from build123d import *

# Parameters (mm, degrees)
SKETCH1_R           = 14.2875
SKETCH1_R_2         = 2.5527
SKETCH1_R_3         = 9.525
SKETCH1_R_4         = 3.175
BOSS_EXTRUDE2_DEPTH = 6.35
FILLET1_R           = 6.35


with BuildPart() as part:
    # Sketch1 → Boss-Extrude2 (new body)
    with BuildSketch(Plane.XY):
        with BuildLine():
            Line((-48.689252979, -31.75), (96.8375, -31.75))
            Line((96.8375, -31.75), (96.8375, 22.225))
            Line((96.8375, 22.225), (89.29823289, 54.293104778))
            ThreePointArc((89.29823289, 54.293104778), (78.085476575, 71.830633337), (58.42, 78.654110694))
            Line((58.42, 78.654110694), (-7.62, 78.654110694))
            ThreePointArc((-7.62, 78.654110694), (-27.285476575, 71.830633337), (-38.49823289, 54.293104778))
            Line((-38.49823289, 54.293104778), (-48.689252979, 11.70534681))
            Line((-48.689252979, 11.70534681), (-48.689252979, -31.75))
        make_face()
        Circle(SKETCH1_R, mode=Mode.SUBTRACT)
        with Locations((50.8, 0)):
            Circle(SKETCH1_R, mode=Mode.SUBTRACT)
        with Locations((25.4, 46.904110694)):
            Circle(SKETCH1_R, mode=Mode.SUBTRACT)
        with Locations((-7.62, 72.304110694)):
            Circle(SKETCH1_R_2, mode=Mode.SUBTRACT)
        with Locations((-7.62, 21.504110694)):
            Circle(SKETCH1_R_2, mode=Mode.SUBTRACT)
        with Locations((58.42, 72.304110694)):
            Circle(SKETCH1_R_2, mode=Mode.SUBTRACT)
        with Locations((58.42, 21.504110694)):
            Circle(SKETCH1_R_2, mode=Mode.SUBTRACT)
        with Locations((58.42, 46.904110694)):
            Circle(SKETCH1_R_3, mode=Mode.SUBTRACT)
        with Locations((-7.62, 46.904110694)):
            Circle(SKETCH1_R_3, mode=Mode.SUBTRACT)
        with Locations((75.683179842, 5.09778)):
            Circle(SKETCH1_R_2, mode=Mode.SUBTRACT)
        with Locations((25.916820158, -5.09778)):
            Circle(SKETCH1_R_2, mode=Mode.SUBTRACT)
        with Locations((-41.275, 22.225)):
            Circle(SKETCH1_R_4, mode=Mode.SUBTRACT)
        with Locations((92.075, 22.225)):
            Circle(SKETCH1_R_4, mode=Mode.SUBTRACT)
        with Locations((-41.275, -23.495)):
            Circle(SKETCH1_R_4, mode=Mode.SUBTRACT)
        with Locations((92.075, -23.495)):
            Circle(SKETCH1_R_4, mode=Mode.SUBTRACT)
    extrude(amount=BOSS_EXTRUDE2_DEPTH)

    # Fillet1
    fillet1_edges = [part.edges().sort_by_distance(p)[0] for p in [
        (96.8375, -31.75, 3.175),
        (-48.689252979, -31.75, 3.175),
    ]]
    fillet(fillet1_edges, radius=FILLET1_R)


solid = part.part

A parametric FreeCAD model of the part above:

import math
import FreeCAD as App
import Part
import Sketcher

V = App.Vector
Q = App.Units.Quantity


def edges_at(feature, points):
    """Names of the edges that pass closest to the given points."""
    edges = feature.Shape.Edges
    near = lambda p: min(range(len(edges)), key=lambda i: edges[i].distToShape(Part.Vertex(*p))[0])
    return sorted({f"Edge{near(p) + 1}" for p in points})

doc = App.newDocument("Part")
body = doc.addObject("PartDesign::Body", "Body")

# Sketch on XY plane
sketch1 = doc.addObject("Sketcher::SketchObject", "Sketch")
body.addObject(sketch1)
sketch1.AttachmentSupport = (doc.XY_Plane, [""])
sketch1.MapMode = "FlatFace"
sketch1.addGeometry(Part.LineSegment(V(-48.689253, -31.75, 0), V(96.8375, -31.75, 0)), False)
sketch1.addGeometry(Part.LineSegment(V(96.8375, -31.75, 0), V(96.8375, 22.225, 0)), False)
sketch1.addGeometry(Part.LineSegment(V(96.8375, 22.225, 0), V(89.298233, 54.293105, 0)), False)
sketch1.addGeometry(Part.ArcOfCircle(Part.Circle(V(58.42, 46.904111, 0), V(0, 0, 1), 31.75), math.radians(13.457511), math.radians(90)), False)
sketch1.addGeometry(Part.LineSegment(V(58.42, 78.654111, 0), V(-7.62, 78.654111, 0)), False)
sketch1.addGeometry(Part.ArcOfCircle(Part.Circle(V(-7.62, 46.904111, 0), V(0, 0, 1), 31.75), math.radians(90), math.radians(166.542489)), False)
sketch1.addGeometry(Part.LineSegment(V(-38.498233, 54.293105, 0), V(-48.689253, 11.705347, 0)), False)
sketch1.addGeometry(Part.LineSegment(V(-48.689253, 11.705347, 0), V(-48.689253, -31.75, 0)), False)
sketch1.addGeometry(Part.Circle(V(-41.275, -23.495, 0), V(0, 0, 1), 3.175), False)
sketch1.addGeometry(Part.Circle(V(-41.275, 22.225, 0), V(0, 0, 1), 3.175), False)
sketch1.addGeometry(Part.Circle(V(0, 0, 0), V(0, 0, 1), 14.2875), False)
sketch1.addGeometry(Part.Circle(V(-7.62, 21.504111, 0), V(0, 0, 1), 2.5527), False)
sketch1.addGeometry(Part.Circle(V(25.91682, -5.09778, 0), V(0, 0, 1), 2.5527), False)
sketch1.addGeometry(Part.Circle(V(92.075, -23.495, 0), V(0, 0, 1), 3.175), False)
sketch1.addGeometry(Part.Circle(V(50.8, 0, 0), V(0, 0, 1), 14.2875), False)
sketch1.addGeometry(Part.Circle(V(58.42, 21.504111, 0), V(0, 0, 1), 2.5527), False)
sketch1.addGeometry(Part.Circle(V(75.68318, 5.09778, 0), V(0, 0, 1), 2.5527), False)
sketch1.addGeometry(Part.Circle(V(92.075, 22.225, 0), V(0, 0, 1), 3.175), False)
sketch1.addGeometry(Part.Circle(V(-7.62, 46.904111, 0), V(0, 0, 1), 9.525), False)
sketch1.addGeometry(Part.Circle(V(-7.62, 72.304111, 0), V(0, 0, 1), 2.5527), False)
sketch1.addGeometry(Part.Circle(V(25.4, 46.904111, 0), V(0, 0, 1), 14.2875), False)
sketch1.addGeometry(Part.Circle(V(58.42, 46.904111, 0), V(0, 0, 1), 9.525), False)
sketch1.addGeometry(Part.Circle(V(58.42, 72.304111, 0), V(0, 0, 1), 2.5527), False)
sketch1.addConstraint(Sketcher.Constraint("Coincident", 0, 2, 1, 1))
sketch1.addConstraint(Sketcher.Constraint("Coincident", 1, 2, 2, 1))
sketch1.addConstraint(Sketcher.Constraint("Coincident", 2, 2, 3, 1))
sketch1.addConstraint(Sketcher.Constraint("Tangent", 3, 2, 4, 1))
sketch1.addConstraint(Sketcher.Constraint("Tangent", 4, 2, 5, 1))
sketch1.addConstraint(Sketcher.Constraint("Tangent", 5, 2, 6, 1))
sketch1.addConstraint(Sketcher.Constraint("Coincident", 6, 2, 7, 1))
sketch1.addConstraint(Sketcher.Constraint("Coincident", 7, 2, 0, 1))
sketch1.addConstraint(Sketcher.Constraint("Horizontal", 0))
sketch1.addConstraint(Sketcher.Constraint("Vertical", 1))
sketch1.addConstraint(Sketcher.Constraint("Horizontal", 4))
sketch1.addConstraint(Sketcher.Constraint("Vertical", 7))
sketch1.addConstraint(Sketcher.Constraint("Coincident", 10, 3, -1, 1))
sketch1.addConstraint(Sketcher.Constraint("Coincident", 18, 3, 5, 3))
sketch1.addConstraint(Sketcher.Constraint("Coincident", 21, 3, 3, 3))
sketch1.addConstraint(Sketcher.Constraint("Equal", 3, 5))
sketch1.addConstraint(Sketcher.Constraint("Equal", 8, 9))
sketch1.addConstraint(Sketcher.Constraint("Equal", 11, 12))
sketch1.addConstraint(Sketcher.Constraint("Equal", 9, 13))
sketch1.addConstraint(Sketcher.Constraint("Equal", 10, 14))
sketch1.addConstraint(Sketcher.Constraint("Equal", 12, 15))
sketch1.addConstraint(Sketcher.Constraint("Equal", 15, 16))
sketch1.addConstraint(Sketcher.Constraint("Equal", 13, 17))
sketch1.addConstraint(Sketcher.Constraint("Equal", 16, 19))
sketch1.addConstraint(Sketcher.Constraint("Equal", 14, 20))
sketch1.addConstraint(Sketcher.Constraint("Equal", 18, 21))
sketch1.addConstraint(Sketcher.Constraint("Equal", 19, 22))
sketch1.addConstraint(Sketcher.Constraint("PointOnObject", 14, 3, -1))
sketch1.addConstraint(Sketcher.Constraint("Horizontal", 8, 3, 13, 3))
sketch1.addConstraint(Sketcher.Constraint("Horizontal", 11, 3, 15, 3))
sketch1.addConstraint(Sketcher.Constraint("Horizontal", 9, 3, 17, 3))
sketch1.addConstraint(Sketcher.Constraint("Horizontal", 18, 3, 20, 3))
sketch1.addConstraint(Sketcher.Constraint("Horizontal", 19, 3, 22, 3))
sketch1.addConstraint(Sketcher.Constraint("Horizontal", 17, 3, 1, 2))
sketch1.addConstraint(Sketcher.Constraint("Horizontal", 2, 2, 5, 2))
sketch1.addConstraint(Sketcher.Constraint("Vertical", 8, 3, 9, 3))
sketch1.addConstraint(Sketcher.Constraint("Vertical", 5, 3, 11, 3))
sketch1.addConstraint(Sketcher.Constraint("Vertical", 3, 3, 15, 3))
sketch1.addConstraint(Sketcher.Constraint("Vertical", 13, 3, 17, 3))
sketch1.addConstraint(Sketcher.Constraint("Vertical", 18, 3, 19, 3))
sketch1.addConstraint(Sketcher.Constraint("Vertical", 21, 3, 22, 3))
sketch1.addConstraint(Sketcher.Constraint("Diameter", 8, Q("0.25 in")))
sketch1.addConstraint(Sketcher.Constraint("Diameter", 18, Q("0.75 in")))
sketch1.addConstraint(Sketcher.Constraint("Radius", 3, Q("1.25 in")))
sketch1.addConstraint(Sketcher.Constraint("Diameter", 10, Q("1.125 in")))
sketch1.addConstraint(Sketcher.Constraint("Diameter", 11, Q("0.201 in")))
sketch1.addConstraint(Sketcher.Constraint("DistanceX", 4, 2, 4, 1, Q("2.6 in")))
sketch1.addConstraint(Sketcher.Constraint("DistanceX", -1, 1, 14, 3, Q("2 in")))
sketch1.addConstraint(Sketcher.Constraint("DistanceX", -1, 1, 20, 3, Q("1 in")))
sketch1.addConstraint(Sketcher.Constraint("DistanceY", 11, 3, 5, 3, Q("1 in")))
sketch1.addConstraint(Sketcher.Constraint("DistanceY", 5, 3, 19, 3, Q("1 in")))
sketch1.addConstraint(Sketcher.Constraint("DistanceX", -1, 1, 3, 3, Q("2.3 in")))
sketch1.addConstraint(Sketcher.Constraint("DistanceY", 8, 3, 9, 3, Q("1.8 in")))
sketch1.addConstraint(Sketcher.Constraint("DistanceY", 1, 1, 1, 2, Q("2.125 in")))
sketch1.addConstraint(Sketcher.Constraint("DistanceY", 0, 2, -1, 1, Q("1.25 in")))
sketch1.addConstraint(Sketcher.Constraint("DistanceX", 8, 3, -1, 1, Q("1.625 in")))
sketch1.addConstraint(Sketcher.Constraint("DistanceX", -1, 1, 13, 3, Q("3.625 in")))
sketch1.addConstraint(Sketcher.Constraint("DistanceX", -1, 1, 0, 2, Q("3.8125 in")))
sketch1.addConstraint(Sketcher.Constraint("DistanceY", 12, 3, -1, 1, Q("0.2007 in")))
sketch1.addConstraint(Sketcher.Constraint("DistanceY", -1, 1, 16, 3, Q("0.2007 in")))
sketch1.addConstraint(Sketcher.Constraint("DistanceX", 0, 1, 0, 2, Q("145.526753 mm")))
sketch1.addConstraint(Sketcher.Constraint("DistanceY", 7, 2, 7, 1, Q("43.455347 mm")))
sketch1.addConstraint(Sketcher.Constraint("DistanceY", -1, 1, 3, 3, Q("46.904111 mm")))
sketch1.addConstraint(Sketcher.Constraint("DistanceX", -1, 1, 12, 3, Q("25.91682 mm")))
sketch1.addConstraint(Sketcher.Constraint("DistanceX", -1, 1, 16, 3, Q("75.68318 mm")))
pad1 = doc.addObject("PartDesign::Pad", "Pad")
body.addObject(pad1)
pad1.Profile = sketch1
pad1.Length = Q("0.25 in")
doc.recompute()

fillet = doc.addObject("PartDesign::Fillet", "Fillet")
body.addObject(fillet)
fillet.Base = (pad1, edges_at(pad1, [(96.838, -31.75, 3.175), (-48.689, -31.75, 3.175)]))
fillet.Radius = Q("0.25 in")

doc.recompute()
